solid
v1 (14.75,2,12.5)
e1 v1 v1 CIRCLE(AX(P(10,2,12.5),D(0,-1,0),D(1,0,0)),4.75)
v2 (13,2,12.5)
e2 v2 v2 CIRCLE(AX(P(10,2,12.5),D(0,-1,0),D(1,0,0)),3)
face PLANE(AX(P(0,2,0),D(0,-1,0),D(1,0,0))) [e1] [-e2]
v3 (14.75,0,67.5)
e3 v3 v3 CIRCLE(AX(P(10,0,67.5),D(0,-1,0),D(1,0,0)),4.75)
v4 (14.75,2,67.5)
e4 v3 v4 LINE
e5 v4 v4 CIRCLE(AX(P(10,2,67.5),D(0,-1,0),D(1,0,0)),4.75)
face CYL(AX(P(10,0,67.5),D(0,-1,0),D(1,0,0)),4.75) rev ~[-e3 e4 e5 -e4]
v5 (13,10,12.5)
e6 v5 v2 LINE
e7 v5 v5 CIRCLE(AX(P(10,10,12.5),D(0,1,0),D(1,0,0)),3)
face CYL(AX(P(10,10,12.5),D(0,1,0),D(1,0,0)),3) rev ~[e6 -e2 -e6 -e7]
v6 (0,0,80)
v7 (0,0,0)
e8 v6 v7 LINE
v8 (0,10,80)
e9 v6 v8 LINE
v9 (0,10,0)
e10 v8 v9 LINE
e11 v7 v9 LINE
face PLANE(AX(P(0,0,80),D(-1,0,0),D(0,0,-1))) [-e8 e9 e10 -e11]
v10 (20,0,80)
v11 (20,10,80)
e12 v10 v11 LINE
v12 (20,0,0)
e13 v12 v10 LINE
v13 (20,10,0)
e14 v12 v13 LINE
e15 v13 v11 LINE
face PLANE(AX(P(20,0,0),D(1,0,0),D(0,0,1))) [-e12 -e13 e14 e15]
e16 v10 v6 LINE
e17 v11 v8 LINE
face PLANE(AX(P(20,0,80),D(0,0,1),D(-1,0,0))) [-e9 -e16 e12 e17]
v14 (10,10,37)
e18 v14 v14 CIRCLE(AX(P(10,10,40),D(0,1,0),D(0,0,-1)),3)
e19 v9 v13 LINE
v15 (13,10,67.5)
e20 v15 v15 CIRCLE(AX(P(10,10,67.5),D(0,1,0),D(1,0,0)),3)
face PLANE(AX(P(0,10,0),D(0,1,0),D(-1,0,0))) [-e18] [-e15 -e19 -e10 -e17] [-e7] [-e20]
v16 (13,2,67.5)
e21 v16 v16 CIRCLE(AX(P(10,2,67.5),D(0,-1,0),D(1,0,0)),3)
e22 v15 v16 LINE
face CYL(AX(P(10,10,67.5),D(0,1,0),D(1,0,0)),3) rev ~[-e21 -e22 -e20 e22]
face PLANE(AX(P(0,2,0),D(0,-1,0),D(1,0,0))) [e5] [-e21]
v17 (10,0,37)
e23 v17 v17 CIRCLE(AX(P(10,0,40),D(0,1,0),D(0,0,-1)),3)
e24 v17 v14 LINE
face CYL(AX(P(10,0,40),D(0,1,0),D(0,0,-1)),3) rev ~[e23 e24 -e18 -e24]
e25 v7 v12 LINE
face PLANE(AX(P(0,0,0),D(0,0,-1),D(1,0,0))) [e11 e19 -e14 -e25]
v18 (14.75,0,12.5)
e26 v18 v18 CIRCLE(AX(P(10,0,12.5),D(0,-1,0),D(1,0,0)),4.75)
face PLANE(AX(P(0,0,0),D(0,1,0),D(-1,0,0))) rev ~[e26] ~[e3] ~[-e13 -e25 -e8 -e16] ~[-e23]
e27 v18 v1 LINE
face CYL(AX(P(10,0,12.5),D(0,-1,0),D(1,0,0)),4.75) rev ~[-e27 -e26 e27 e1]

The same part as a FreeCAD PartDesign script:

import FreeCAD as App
import Part
import Sketcher

V = App.Vector

doc = App.newDocument("Part")
body = doc.addObject("PartDesign::Body", "Body")

# Sketch on XZ plane
sketch1 = doc.addObject("Sketcher::SketchObject", "Sketch")
body.addObject(sketch1)
sketch1.AttachmentSupport = (doc.XZ_Plane, [""])
sketch1.MapMode = "FlatFace"
sketch1.addGeometry(Part.LineSegment(V(20, 0, 0), V(0, 0, 0)), False)
sketch1.addGeometry(Part.LineSegment(V(0, 0, 0), V(0, 80, 0)), False)
sketch1.addGeometry(Part.LineSegment(V(0, 80, 0), V(20, 80, 0)), False)
sketch1.addGeometry(Part.LineSegment(V(20, 80, 0), V(20, 0, 0)), False)
sketch1.addConstraint(Sketcher.Constraint("Coincident", 0, 2, 1, 1))
sketch1.addConstraint(Sketcher.Constraint("Coincident", 1, 2, 2, 1))
sketch1.addConstraint(Sketcher.Constraint("Coincident", 2, 2, 3, 1))
sketch1.addConstraint(Sketcher.Constraint("Coincident", 3, 2, 0, 1))
sketch1.addConstraint(Sketcher.Constraint("Horizontal", 0))
sketch1.addConstraint(Sketcher.Constraint("Vertical", 1))
sketch1.addConstraint(Sketcher.Constraint("Horizontal", 2))
sketch1.addConstraint(Sketcher.Constraint("Vertical", 3))
sketch1.addConstraint(Sketcher.Constraint("Coincident", 0, 2, -1, 1))
sketch1.addConstraint(Sketcher.Constraint("DistanceX", 0, 2, 0, 1, 20.0))
sketch1.addConstraint(Sketcher.Constraint("DistanceY", 1, 1, 1, 2, 80.0))
pad1 = doc.addObject("PartDesign::Pad", "Pad")
body.addObject(pad1)
pad1.Profile = sketch1
pad1.Length = 10
pad1.Reversed = True

# Sketch on XZ plane
sketch2 = doc.addObject("Sketcher::SketchObject", "Sketch001")
body.addObject(sketch2)
sketch2.AttachmentSupport = (doc.XZ_Plane, [""])
sketch2.MapMode = "FlatFace"
sketch2.AttachmentOffset = App.Placement(V(0, 0, -10), App.Rotation())
sketch2.addGeometry(Part.Circle(V(10, 67.5, 0), V(0, 0, 1), 3), False)
sketch2.addGeometry(Part.Circle(V(10, 12.5, 0), V(0, 0, 1), 3), False)
sketch2.addConstraint(Sketcher.Constraint("Equal", 0, 1))
sketch2.addConstraint(Sketcher.Constraint("Vertical", 0, 3, 1, 3))
sketch2.addConstraint(Sketcher.Constraint("Diameter", 0, 6.0))
sketch2.addConstraint(Sketcher.Constraint("DistanceY", -1, 1, 1, 3, 12.5))
sketch2.addConstraint(Sketcher.Constraint("DistanceX", -1, 1, 0, 3, 10.0))
sketch2.addConstraint(Sketcher.Constraint("DistanceY", 1, 3, 0, 3, 55.0))
pocket1 = doc.addObject("PartDesign::Pocket", "Pocket")
body.addObject(pocket1)
pocket1.Profile = sketch2
pocket1.Type = "ThroughAll"
pocket1.Reversed = True

# Sketch on XZ plane
sketch3 = doc.addObject("Sketcher::SketchObject", "Sketch002")
body.addObject(sketch3)
sketch3.AttachmentSupport = (doc.XZ_Plane, [""])
sketch3.MapMode = "FlatFace"
sketch3.addGeometry(Part.Circle(V(10, 67.5, 0), V(0, 0, 1), 4.8), False)
sketch3.addGeometry(Part.Circle(V(10, 67.5, 0), V(0, 0, 1), 3), False)
sketch3.addGeometry(Part.Circle(V(10, 12.5, 0), V(0, 0, 1), 4.8), False)
sketch3.addGeometry(Part.Circle(V(10, 12.5, 0), V(0, 0, 1), 3), False)
sketch3.addConstraint(Sketcher.Constraint("Coincident", 1, 3, 0, 3))
sketch3.addConstraint(Sketcher.Constraint("Coincident", 3, 3, 2, 3))
sketch3.addConstraint(Sketcher.Constraint("Equal", 0, 2))
sketch3.addConstraint(Sketcher.Constraint("Equal", 1, 3))
sketch3.addConstraint(Sketcher.Constraint("Vertical", 1, 3, 2, 3))
sketch3.addConstraint(Sketcher.Constraint("Diameter", 0, 9.5))
sketch3.addConstraint(Sketcher.Constraint("Diameter", 1, 6.0))
sketch3.addConstraint(Sketcher.Constraint("DistanceX", -1, 1, 0, 3, 10.0))
sketch3.addConstraint(Sketcher.Constraint("DistanceY", 2, 3, 0, 3, 55.0))
sketch3.addConstraint(Sketcher.Constraint("DistanceY", -1, 1, 0, 3, 67.5))
pocket2 = doc.addObject("PartDesign::Pocket", "Pocket001")
body.addObject(pocket2)
pocket2.Profile = sketch3
pocket2.Length = 2

# Sketch on XZ plane
sketch4 = doc.addObject("Sketcher::SketchObject", "Sketch003")
body.addObject(sketch4)
sketch4.AttachmentSupport = (doc.XZ_Plane, [""])
sketch4.MapMode = "FlatFace"
sketch4.addGeometry(Part.Circle(V(10, 40, 0), V(0, 0, 1), 3), False)
sketch4.addConstraint(Sketcher.Constraint("Diameter", 0, 6.0))
sketch4.addConstraint(Sketcher.Constraint("DistanceX", -1, 1, 0, 3, 10.0))
sketch4.addConstraint(Sketcher.Constraint("DistanceY", -1, 1, 0, 3, 40.0))
doc.recompute()
hole = doc.addObject("PartDesign::Hole", "Hole")
body.addObject(hole)
hole.Profile = sketch4
hole.ThreadType = "None"
hole.Diameter = 6
hole.DepthType = "Dimension"
hole.Depth = 22.931
hole.DrillPoint = "Flat"

doc.recompute()
